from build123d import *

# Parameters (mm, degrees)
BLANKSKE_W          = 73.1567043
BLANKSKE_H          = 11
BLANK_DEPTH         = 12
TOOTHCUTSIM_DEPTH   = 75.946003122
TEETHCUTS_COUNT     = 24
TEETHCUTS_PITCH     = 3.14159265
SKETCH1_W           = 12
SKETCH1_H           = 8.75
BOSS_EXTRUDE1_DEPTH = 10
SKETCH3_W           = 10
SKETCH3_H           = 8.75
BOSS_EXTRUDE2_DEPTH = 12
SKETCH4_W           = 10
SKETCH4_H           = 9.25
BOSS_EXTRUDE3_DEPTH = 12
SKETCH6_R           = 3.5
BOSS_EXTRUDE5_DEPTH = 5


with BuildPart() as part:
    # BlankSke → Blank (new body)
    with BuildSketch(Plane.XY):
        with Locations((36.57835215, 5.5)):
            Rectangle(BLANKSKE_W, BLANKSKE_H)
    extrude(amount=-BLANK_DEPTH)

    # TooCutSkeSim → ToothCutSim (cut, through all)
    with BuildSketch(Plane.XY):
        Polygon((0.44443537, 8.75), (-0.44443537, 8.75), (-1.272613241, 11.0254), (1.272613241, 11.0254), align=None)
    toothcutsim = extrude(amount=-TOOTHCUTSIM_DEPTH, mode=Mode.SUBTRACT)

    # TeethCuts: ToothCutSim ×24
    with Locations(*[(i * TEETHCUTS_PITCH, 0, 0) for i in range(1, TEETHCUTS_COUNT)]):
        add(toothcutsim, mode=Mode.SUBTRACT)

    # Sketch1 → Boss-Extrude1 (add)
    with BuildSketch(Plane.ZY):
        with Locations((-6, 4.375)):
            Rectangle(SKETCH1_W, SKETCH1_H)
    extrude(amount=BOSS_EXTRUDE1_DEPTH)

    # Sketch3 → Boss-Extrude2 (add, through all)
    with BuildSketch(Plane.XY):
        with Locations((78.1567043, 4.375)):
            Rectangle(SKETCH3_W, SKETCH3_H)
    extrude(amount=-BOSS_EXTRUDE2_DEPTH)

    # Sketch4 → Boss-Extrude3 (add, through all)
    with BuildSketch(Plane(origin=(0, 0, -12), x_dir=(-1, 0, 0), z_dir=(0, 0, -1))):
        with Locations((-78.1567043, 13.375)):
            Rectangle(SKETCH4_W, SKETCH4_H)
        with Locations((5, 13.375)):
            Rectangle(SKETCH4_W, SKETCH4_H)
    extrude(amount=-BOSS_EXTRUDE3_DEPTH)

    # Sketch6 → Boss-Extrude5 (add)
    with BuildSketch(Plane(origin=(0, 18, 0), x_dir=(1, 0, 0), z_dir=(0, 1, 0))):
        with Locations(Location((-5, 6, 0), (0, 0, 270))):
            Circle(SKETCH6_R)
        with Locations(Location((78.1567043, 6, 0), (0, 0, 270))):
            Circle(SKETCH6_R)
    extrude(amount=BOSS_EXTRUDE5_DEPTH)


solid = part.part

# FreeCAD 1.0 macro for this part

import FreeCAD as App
import Part
import Sketcher
Q = App.Units.Quantity


def add_polygon(sketch, points):
    """Adds a closed chain of lines whose ends are joined by coincident constraints."""
    first, n = sketch.GeometryCount, len(points)
    for a, b in zip(points, points[1:] + points[:1]):
        sketch.addGeometry(Part.LineSegment(App.Vector(*a, 0), App.Vector(*b, 0)), False)
    for i in range(n):
        sketch.addConstraint(Sketcher.Constraint("Coincident", first + i, 2, first + (i + 1) % n, 1))

doc = App.newDocument("Part")
body = doc.addObject("PartDesign::Body", "Body")

sketch1 = body.newObject("Sketcher::SketchObject", "Sketch")
sketch1.AttachmentSupport = (doc.getObject("XY_Plane"), [""])
sketch1.MapMode = "FlatFace"
add_polygon(sketch1, [(0, 11), (0, 0), (73, 0), (73, 11)])
sketch1.addConstraint(Sketcher.Constraint("Vertical", 0))
sketch1.addConstraint(Sketcher.Constraint("Horizontal", 1))
sketch1.addConstraint(Sketcher.Constraint("Vertical", 2))
sketch1.addConstraint(Sketcher.Constraint("Horizontal", 3))
sketch1.addConstraint(Sketcher.Constraint("Coincident", 0, 2, -1, 1))
sketch1.addConstraint(Sketcher.Constraint("DistanceY", 0, 2, 0, 1, 11.0))
sketch1.addConstraint(Sketcher.Constraint("DistanceX", 1, 1, 1, 2, 73.156704))
pad1 = body.newObject("PartDesign::Pad", "Pad")
pad1.Profile = sketch1
pad1.Length = 12
pad1.Reversed = True

sketch2 = body.newObject("Sketcher::SketchObject", "Sketch001")
sketch2.AttachmentSupport = (doc.getObject("XY_Plane"), [""])
sketch2.MapMode = "FlatFace"
add_polygon(sketch2, [(-0.4, 8.8), (0.4, 8.8), (1.3, 11), (-1.3, 11)])
sketch2.addConstraint(Sketcher.Constraint("Horizontal", 0))
sketch2.addConstraint(Sketcher.Constraint("Horizontal", 2))
sketch2.addConstraint(Sketcher.Constraint("Equal", 1, 3))
sketch2.addConstraint(Sketcher.Constraint("Angle", 1, Q("70 deg")))
sketch2.addConstraint(Sketcher.Constraint("DistanceY", -1, 1, 0, 2, 8.75))
sketch2.addConstraint(Sketcher.Constraint("DistanceX", 0, 1, 0, 2, 0.888871))
sketch2.addConstraint(Sketcher.Constraint("DistanceY", -1, 1, 1, 2, 11.0254))
sketch2.addConstraint(Sketcher.Constraint("DistanceX", -1, 1, 0, 2, 0.444435))
pocket1 = body.newObject("PartDesign::Pocket", "Pocket")
pocket1.Profile = sketch2
pocket1.Type = "ThroughAll"
doc.recompute()

linearpattern = body.newObject("PartDesign::LinearPattern", "LinearPattern")
linearpattern.Originals = [pocket1]
linearpattern.Direction = (doc.getObject("X_Axis"), [""])
linearpattern.Mode = "offset"
linearpattern.Offset = 3.141593
linearpattern.Occurrences = 24
body.Tip = linearpattern

sketch3 = body.newObject("Sketcher::SketchObject", "Sketch002")
sketch3.AttachmentSupport = (doc.getObject("YZ_Plane"), [""])
sketch3.MapMode = "FlatFace"
add_polygon(sketch3, [(9, -12), (0, -12), (0, 0), (9, 0)])
sketch3.addConstraint(Sketcher.Constraint("Horizontal", 0))
sketch3.addConstraint(Sketcher.Constraint("Vertical", 1))
sketch3.addConstraint(Sketcher.Constraint("Horizontal", 2))
sketch3.addConstraint(Sketcher.Constraint("Vertical", 3))
sketch3.addConstraint(Sketcher.Constraint("Coincident", 1, 2, -1, 1))
sketch3.addConstraint(Sketcher.Constraint("DistanceY", 1, 1, 1, 2, 12.0))
sketch3.addConstraint(Sketcher.Constraint("DistanceX", 0, 2, 0, 1, 8.75))
pad2 = body.newObject("PartDesign::Pad", "Pad001")
pad2.Profile = sketch3
pad2.Length = 10
pad2.Reversed = True

sketch4 = body.newObject("Sketcher::SketchObject", "Sketch003")
sketch4.AttachmentSupport = (doc.getObject("XY_Plane"), [""])
sketch4.MapMode = "FlatFace"
add_polygon(sketch4, [(73, 9), (73, 0), (83, 0), (83, 9)])
sketch4.addConstraint(Sketcher.Constraint("Vertical", 0))
sketch4.addConstraint(Sketcher.Constraint("Horizontal", 1))
sketch4.addConstraint(Sketcher.Constraint("Vertical", 2))
sketch4.addConstraint(Sketcher.Constraint("Horizontal", 3))
sketch4.addConstraint(Sketcher.Constraint("PointOnObject", 0, 2, -1))
sketch4.addConstraint(Sketcher.Constraint("DistanceX", 1, 1, 1, 2, 10.0))
sketch4.addConstraint(Sketcher.Constraint("DistanceY", 0, 2, 0, 1, 8.75))
sketch4.addConstraint(Sketcher.Constraint("DistanceX", -1, 1, 0, 2, 73.156704))
pad3 = body.newObject("PartDesign::Pad", "Pad002")
pad3.Profile = sketch4
pad3.Length = 12
pad3.Reversed = True

sketch5 = body.newObject("Sketcher::SketchObject", "Sketch004")
sketch5.AttachmentSupport = (doc.getObject("XY_Plane"), [""])
sketch5.MapMode = "FlatFace"
sketch5.AttachmentOffset = App.Placement(App.Vector(0, 0, -12), App.Rotation())
add_polygon(sketch5, [(83, 18), (83, 9), (73, 9), (73, 18)])
add_polygon(sketch5, [(0, 18), (0, 9), (-10, 9), (-10, 18)])
sketch5.addConstraint(Sketcher.Constraint("Vertical", 0))
sketch5.addConstraint(Sketcher.Constraint("Horizontal", 1))
sketch5.addConstraint(Sketcher.Constraint("Vertical", 2))
sketch5.addConstraint(Sketcher.Constraint("Horizontal", 3))
sketch5.addConstraint(Sketcher.Constraint("Vertical", 4))
sketch5.addConstraint(Sketcher.Constraint("Horizontal", 5))
sketch5.addConstraint(Sketcher.Constraint("Vertical", 6))
sketch5.addConstraint(Sketcher.Constraint("Horizontal", 7))
sketch5.addConstraint(Sketcher.Constraint("PointOnObject", 4, 2, -2))
sketch5.addConstraint(Sketcher.Constraint("Horizontal", 1, 2, 4, 2))
sketch5.addConstraint(Sketcher.Constraint("Horizontal", 3, 2, 6, 2))
sketch5.addConstraint(Sketcher.Constraint("Equal", 3, 5))
sketch5.addConstraint(Sketcher.Constraint("DistanceX", 1, 2, 1, 1, 10.0))
sketch5.addConstraint(Sketcher.Constraint("DistanceY", -1, 1, 2, 2, 18.0))
sketch5.addConstraint(Sketcher.Constraint("DistanceY", 0, 2, 0, 1, 9.25))
sketch5.addConstraint(Sketcher.Constraint("DistanceX", -1, 1, 0, 2, 83.156704))
pad4 = body.newObject("PartDesign::Pad", "Pad003")
pad4.Profile = sketch5
pad4.Length = 12

sketch6 = body.newObject("Sketcher::SketchObject", "Sketch005")
sketch6.AttachmentSupport = (doc.getObject("XZ_Plane"), [""])
sketch6.MapMode = "FlatFace"
sketch6.AttachmentOffset = App.Placement(App.Vector(0, 0, -18), App.Rotation())
sketch6.addGeometry(Part.Circle(App.Vector(-5, -6, 0), App.Vector(0, 0, 1), 3.5), False)
sketch6.addGeometry(Part.Circle(App.Vector(78.2, -6, 0), App.Vector(0, 0, 1), 3.5), False)
sketch6.addConstraint(Sketcher.Constraint("Equal", 0, 1))
sketch6.addConstraint(Sketcher.Constraint("Horizontal", 0, 3, 1, 3))
sketch6.addConstraint(Sketcher.Constraint("Diameter", 0, 7.0))
sketch6.addConstraint(Sketcher.Constraint("DistanceX", 0, 3, -1, 1, 5.0))
sketch6.addConstraint(Sketcher.Constraint("DistanceY", 0, 3, -1, 1, 6.0))
sketch6.addConstraint(Sketcher.Constraint("DistanceX", -1, 1, 1, 3, 78.156704))
pad5 = body.newObject("PartDesign::Pad", "Pad004")
pad5.Profile = sketch6
pad5.Length = 5
pad5.Reversed = True

doc.recompute()
